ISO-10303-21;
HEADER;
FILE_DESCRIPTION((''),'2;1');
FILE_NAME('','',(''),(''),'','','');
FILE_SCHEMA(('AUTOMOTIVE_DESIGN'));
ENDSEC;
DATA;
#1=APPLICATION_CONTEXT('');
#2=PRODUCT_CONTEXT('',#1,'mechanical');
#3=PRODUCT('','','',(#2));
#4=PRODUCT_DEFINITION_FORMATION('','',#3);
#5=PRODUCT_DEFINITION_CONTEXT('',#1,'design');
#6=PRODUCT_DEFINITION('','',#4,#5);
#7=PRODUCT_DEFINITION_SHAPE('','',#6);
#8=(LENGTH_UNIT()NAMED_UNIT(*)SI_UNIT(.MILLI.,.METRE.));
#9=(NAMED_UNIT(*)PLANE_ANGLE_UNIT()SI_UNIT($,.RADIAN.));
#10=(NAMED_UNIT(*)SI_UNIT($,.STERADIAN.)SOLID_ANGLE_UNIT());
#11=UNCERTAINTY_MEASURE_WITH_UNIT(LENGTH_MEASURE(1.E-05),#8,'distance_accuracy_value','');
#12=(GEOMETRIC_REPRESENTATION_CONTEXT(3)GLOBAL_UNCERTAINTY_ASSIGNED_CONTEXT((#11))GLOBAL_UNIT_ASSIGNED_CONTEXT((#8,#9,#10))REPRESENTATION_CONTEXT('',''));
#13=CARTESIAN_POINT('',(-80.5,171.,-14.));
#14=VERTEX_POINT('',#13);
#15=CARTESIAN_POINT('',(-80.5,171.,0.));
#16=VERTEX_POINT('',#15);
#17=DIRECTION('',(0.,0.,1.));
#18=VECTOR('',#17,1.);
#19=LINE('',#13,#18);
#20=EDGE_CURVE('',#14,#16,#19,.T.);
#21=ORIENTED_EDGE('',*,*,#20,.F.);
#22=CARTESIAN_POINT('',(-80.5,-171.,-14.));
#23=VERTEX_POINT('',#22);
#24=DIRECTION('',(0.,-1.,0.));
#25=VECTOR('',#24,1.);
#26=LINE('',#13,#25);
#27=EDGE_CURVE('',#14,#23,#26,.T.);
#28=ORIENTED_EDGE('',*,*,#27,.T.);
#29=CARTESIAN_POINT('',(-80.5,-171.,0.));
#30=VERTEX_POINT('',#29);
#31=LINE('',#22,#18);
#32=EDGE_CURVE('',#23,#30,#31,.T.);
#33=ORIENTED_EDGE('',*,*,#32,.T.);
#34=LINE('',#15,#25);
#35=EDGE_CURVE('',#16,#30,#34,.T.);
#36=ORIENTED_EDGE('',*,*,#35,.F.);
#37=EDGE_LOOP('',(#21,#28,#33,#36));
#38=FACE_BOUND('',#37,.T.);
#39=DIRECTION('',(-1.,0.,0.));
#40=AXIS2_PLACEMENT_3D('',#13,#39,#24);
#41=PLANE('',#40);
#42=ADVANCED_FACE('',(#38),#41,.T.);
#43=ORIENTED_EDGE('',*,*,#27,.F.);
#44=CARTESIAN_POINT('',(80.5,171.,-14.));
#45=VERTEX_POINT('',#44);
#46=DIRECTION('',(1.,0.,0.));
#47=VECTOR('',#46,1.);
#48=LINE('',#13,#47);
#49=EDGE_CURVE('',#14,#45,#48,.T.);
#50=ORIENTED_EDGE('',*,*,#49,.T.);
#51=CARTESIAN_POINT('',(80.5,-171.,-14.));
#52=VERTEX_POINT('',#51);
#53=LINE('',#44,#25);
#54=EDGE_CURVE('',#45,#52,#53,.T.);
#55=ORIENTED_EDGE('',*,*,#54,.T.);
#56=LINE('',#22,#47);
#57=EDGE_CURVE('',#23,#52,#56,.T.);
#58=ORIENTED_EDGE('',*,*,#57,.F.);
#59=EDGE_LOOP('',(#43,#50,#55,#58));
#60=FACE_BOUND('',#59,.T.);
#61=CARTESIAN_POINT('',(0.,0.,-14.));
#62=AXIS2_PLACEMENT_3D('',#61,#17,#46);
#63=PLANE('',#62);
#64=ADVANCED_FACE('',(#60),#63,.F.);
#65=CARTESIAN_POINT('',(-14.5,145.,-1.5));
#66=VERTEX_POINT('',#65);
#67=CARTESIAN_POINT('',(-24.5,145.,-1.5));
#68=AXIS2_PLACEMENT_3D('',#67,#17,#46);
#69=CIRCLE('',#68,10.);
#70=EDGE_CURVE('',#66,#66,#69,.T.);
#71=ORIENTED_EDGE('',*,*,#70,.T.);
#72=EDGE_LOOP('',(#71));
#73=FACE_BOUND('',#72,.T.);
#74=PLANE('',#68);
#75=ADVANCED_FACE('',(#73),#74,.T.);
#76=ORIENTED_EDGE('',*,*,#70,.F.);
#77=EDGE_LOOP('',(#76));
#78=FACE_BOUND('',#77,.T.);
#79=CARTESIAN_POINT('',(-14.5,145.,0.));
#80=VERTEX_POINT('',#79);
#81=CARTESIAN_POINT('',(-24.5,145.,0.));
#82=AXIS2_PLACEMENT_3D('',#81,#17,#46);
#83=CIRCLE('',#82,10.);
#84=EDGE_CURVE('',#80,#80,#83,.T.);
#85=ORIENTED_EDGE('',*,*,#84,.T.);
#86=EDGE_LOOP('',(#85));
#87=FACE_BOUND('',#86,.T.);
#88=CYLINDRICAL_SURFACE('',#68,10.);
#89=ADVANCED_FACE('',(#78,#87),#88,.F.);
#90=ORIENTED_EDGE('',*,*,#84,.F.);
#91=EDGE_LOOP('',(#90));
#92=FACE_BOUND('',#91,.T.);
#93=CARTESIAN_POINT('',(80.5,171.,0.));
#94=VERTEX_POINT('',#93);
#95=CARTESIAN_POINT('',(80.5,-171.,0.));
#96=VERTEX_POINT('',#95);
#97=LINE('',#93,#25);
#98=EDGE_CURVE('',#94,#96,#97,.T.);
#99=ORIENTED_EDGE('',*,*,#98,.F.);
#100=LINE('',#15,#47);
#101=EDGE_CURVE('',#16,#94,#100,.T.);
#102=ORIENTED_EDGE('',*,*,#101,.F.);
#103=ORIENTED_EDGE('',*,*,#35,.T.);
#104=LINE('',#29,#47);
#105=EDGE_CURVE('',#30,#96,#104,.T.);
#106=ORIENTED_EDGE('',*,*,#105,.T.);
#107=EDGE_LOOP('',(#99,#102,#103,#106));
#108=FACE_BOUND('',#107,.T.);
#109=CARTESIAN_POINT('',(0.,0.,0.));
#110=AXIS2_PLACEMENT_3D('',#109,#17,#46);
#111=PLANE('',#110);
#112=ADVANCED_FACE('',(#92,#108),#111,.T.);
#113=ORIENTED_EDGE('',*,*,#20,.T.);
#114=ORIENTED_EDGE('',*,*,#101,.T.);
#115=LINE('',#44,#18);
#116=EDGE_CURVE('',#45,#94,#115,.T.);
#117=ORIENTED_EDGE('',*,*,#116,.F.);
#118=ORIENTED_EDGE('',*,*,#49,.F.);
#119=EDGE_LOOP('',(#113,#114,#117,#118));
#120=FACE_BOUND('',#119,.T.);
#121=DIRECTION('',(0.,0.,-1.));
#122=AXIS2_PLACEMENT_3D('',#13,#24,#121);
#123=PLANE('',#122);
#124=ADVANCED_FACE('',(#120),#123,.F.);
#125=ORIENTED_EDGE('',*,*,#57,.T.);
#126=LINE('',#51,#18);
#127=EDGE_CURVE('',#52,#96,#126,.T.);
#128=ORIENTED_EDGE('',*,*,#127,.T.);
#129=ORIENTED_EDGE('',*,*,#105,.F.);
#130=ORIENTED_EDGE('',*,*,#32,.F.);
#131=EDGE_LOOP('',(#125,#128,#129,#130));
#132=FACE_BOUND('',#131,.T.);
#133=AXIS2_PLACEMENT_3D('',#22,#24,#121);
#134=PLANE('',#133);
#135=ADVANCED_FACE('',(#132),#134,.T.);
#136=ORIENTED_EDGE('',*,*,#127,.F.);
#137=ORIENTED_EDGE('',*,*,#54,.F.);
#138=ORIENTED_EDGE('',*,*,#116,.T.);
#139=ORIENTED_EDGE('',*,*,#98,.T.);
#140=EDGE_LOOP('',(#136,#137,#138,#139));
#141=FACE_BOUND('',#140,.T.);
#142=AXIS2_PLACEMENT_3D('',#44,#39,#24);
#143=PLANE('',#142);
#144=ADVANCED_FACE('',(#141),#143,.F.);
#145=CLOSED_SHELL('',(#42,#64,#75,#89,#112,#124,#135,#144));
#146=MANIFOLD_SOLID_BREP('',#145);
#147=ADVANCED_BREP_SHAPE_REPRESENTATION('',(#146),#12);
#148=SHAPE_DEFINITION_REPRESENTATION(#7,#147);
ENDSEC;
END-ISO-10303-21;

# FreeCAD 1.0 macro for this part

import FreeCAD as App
import Part
import Sketcher
Q = App.Units.Quantity

doc = App.newDocument("Part")
body = doc.addObject("PartDesign::Body", "Body")

# Sketch on XY plane
sketch1 = body.newObject("Sketcher::SketchObject", "Sketch")
sketch1.AttachmentSupport = (doc.getObject("XY_Plane"), [""])
sketch1.MapMode = "FlatFace"
sketch1.addGeometry([
    Part.LineSegment(App.Vector(-80.5, 171, 0), App.Vector(-80.5, -171, 0)),
    Part.LineSegment(App.Vector(-80.5, -171, 0), App.Vector(80.5, -171, 0)),
    Part.LineSegment(App.Vector(80.5, -171, 0), App.Vector(80.5, 171, 0)),
    Part.LineSegment(App.Vector(80.5, 171, 0), App.Vector(-80.5, 171, 0)),
], False)
sketch1.addConstraint([
    Sketcher.Constraint("Coincident", 0, 2, 1, 1),
    Sketcher.Constraint("Coincident", 1, 2, 2, 1),
    Sketcher.Constraint("Coincident", 2, 2, 3, 1),
    Sketcher.Constraint("Coincident", 3, 2, 0, 1),
    Sketcher.Constraint("Vertical", 0),
    Sketcher.Constraint("Horizontal", 1),
    Sketcher.Constraint("Vertical", 2),
    Sketcher.Constraint("Horizontal", 3),
    Sketcher.Constraint("Symmetric", 0, 2, 2, 2, -1, 1),
    Sketcher.Constraint("DistanceX", 1, 1, 1, 2, Q("161 mm")),
    Sketcher.Constraint("DistanceY", 0, 2, 0, 1, Q("342 mm")),
])
pad1 = body.newObject("PartDesign::Pad", "Pad")
pad1.Profile = sketch1
pad1.Length = 14
pad1.Reversed = True

# Sketch on XY plane
sketch2 = body.newObject("Sketcher::SketchObject", "Sketch001")
sketch2.AttachmentSupport = (doc.getObject("XY_Plane"), [""])
sketch2.MapMode = "FlatFace"
sketch2.addGeometry(Part.Circle(App.Vector(-24.5, 145, 0), App.Vector(0, 0, 1), 10), False)
sketch2.addConstraint([
    Sketcher.Constraint("Diameter", 0, Q("20 mm")),
    Sketcher.Constraint("DistanceY", -1, 1, 0, 3, Q("145 mm")),
    Sketcher.Constraint("DistanceX", 0, 3, -1, 1, Q("24.5 mm")),
])
pocket1 = body.newObject("PartDesign::Pocket", "Pocket")
pocket1.Profile = sketch2
pocket1.Length = 1.5

doc.recompute()
